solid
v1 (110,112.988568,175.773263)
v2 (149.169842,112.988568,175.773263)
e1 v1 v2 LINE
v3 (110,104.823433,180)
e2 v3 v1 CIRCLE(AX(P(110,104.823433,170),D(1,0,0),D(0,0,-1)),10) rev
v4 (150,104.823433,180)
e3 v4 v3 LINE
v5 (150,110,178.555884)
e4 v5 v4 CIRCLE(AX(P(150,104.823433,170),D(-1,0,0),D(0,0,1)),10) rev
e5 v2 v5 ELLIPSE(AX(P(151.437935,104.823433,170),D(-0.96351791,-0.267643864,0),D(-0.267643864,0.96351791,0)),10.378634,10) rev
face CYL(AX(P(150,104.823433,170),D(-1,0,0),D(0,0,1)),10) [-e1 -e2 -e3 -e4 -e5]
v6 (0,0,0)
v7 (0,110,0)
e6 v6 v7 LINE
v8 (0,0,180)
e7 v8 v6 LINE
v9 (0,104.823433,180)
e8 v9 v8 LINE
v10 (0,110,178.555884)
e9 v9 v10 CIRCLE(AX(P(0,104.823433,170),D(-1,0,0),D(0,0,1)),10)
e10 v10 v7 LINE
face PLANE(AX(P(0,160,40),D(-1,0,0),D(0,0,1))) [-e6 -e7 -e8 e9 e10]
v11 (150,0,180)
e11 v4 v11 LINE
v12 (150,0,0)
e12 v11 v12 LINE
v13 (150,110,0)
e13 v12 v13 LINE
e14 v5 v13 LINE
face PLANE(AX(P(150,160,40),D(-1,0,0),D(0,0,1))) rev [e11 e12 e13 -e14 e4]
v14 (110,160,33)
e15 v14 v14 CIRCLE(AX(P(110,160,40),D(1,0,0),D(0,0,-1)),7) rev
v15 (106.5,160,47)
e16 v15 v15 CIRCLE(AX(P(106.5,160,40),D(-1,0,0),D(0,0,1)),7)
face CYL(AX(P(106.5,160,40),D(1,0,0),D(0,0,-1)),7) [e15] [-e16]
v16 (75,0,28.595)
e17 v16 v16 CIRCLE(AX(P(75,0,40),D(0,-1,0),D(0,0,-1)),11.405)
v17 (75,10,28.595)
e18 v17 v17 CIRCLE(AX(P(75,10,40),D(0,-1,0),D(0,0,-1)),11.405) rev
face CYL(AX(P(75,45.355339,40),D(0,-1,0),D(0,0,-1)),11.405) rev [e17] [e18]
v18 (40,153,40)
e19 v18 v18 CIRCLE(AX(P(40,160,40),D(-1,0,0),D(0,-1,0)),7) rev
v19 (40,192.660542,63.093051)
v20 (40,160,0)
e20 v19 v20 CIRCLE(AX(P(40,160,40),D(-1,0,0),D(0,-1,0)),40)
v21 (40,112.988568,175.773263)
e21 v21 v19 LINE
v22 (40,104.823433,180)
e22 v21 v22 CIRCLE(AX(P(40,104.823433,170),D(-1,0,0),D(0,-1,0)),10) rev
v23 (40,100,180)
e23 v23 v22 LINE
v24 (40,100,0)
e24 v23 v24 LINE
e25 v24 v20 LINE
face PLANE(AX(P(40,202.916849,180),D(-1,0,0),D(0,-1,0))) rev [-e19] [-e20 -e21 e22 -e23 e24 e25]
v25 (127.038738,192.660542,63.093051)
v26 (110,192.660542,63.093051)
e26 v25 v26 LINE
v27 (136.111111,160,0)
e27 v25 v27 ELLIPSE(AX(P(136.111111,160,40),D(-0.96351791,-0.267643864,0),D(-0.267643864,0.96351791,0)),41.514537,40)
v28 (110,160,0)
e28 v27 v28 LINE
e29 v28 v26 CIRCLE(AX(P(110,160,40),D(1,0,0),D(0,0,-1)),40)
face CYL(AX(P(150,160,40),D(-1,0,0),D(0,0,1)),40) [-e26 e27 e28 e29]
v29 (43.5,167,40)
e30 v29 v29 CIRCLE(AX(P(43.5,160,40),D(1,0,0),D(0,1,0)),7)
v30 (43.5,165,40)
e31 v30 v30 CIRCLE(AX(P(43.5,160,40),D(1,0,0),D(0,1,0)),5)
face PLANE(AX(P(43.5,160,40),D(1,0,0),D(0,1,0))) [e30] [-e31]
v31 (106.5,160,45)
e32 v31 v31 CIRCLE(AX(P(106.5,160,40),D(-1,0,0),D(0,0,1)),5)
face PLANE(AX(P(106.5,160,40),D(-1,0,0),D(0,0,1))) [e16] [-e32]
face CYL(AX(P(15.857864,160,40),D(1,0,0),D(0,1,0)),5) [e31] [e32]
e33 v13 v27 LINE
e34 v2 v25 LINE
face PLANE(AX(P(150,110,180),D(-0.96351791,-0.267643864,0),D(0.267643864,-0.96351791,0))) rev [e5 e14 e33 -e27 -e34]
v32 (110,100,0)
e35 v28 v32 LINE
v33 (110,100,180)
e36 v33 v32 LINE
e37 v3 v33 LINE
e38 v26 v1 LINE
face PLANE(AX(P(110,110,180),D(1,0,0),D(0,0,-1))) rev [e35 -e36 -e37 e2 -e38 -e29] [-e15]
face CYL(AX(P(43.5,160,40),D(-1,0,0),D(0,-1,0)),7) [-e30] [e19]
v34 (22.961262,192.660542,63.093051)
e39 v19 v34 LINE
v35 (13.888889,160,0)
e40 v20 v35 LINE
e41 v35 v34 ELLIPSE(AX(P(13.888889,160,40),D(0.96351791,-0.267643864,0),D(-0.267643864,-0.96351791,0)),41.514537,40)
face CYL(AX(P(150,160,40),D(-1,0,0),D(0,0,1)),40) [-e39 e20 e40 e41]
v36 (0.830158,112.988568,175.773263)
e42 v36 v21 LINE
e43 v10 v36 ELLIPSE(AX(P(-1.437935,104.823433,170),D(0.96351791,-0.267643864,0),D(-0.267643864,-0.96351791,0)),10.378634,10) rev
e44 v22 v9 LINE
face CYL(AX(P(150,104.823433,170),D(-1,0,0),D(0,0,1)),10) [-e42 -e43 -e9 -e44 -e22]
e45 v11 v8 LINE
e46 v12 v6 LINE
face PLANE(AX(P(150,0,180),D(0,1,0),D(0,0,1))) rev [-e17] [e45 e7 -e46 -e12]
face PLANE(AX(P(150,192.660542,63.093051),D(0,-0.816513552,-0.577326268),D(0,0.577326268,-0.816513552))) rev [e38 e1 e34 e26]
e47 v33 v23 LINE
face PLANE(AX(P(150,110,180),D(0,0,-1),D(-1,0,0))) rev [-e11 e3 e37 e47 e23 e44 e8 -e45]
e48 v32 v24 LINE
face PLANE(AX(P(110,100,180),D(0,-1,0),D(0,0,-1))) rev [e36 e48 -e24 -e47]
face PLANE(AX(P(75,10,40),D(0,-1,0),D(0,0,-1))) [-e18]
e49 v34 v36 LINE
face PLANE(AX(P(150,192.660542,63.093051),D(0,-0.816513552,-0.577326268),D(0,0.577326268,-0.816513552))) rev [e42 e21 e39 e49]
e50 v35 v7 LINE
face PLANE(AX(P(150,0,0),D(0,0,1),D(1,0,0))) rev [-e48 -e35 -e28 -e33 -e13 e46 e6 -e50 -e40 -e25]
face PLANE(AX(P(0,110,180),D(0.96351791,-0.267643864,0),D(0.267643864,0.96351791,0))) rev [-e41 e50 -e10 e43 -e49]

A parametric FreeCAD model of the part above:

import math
import FreeCAD as App
import Part
import Sketcher
from FreeCAD import Vector


def edges_at(feature, points):
    """Names of the edges that pass closest to the given points."""
    edges = feature.Shape.Edges
    near = lambda p: min(range(len(edges)), key=lambda i: edges[i].distToShape(Part.Vertex(*p))[0])
    return sorted({f"Edge{near(p) + 1}" for p in points})

doc = App.newDocument("Part")
params = doc.addObject("Spreadsheet::Sheet", "Params")
for row, (alias, value) in enumerate([
    ("sketch1_radius", "40 mm"),
    ("sketch1_width", "160 mm"),
    ("sketch1_width2", "110 mm"),
    ("sketch1_height", "180 mm"),
    ("pad1_length", "150 mm"),
    ("fillet_radius", "10 mm"),
    ("sketch2_width", "70 mm"),
    ("sketch3_diameter", "25 mm"),
    ("pocket2_length", "10 mm"),
    ("sketch4_diameter", "10 mm"),
    ("pocket3_length", "80 mm"),
    ("pocket3_length2", "10 mm"),
    ("sketch5_diameter", "25 mm"),
    ("sketch5_diameter2", "22.81 mm"),
    ("pad2_length", "10 mm"),
    ("sketch6_diameter", "10 mm"),
    ("pad3_length", "90 mm"),
    ("sketch7_diameter", "14 mm"),
    ("sketch7_diameter2", "10 mm"),
    ("pad4_length", "3.5 mm"),
    ("sketch8_diameter", "14 mm"),
    ("sketch8_diameter2", "10 mm"),
    ("pad5_length", "3.5 mm"),
], start=1):
    params.set(f"A{row}", alias)
    params.set(f"B{row}", "=" + value)
    params.setAlias(f"B{row}", alias)

body = doc.addObject("PartDesign::Body", "Body")

sketch1 = body.newObject("Sketcher::SketchObject", "Sketch")
sketch1.AttachmentSupport = (doc.getObject("YZ_Plane"), [""])
sketch1.MapMode = "FlatFace"
sketch1.addGeometry([
    Part.LineSegment(Vector(0, 0, 0), Vector(160, 0, 0)),
    Part.ArcOfCircle(Part.Circle(Vector(160, 40, 0), Vector(0, 0, 1), 40), math.radians(-90), math.radians(35.262705)),
    Part.LineSegment(Vector(192.660542, 63.093051, 0), Vector(110, 180, 0)),
    Part.LineSegment(Vector(110, 180, 0), Vector(0, 180, 0)),
    Part.LineSegment(Vector(0, 180, 0), Vector(0, 0, 0)),
], False)
sketch1.addConstraint([
    Sketcher.Constraint("Tangent", 0, 2, 1, 1),
    Sketcher.Constraint("Tangent", 1, 2, 2, 1),
    Sketcher.Constraint("Coincident", 2, 2, 3, 1),
    Sketcher.Constraint("Coincident", 3, 2, 4, 1),
    Sketcher.Constraint("Coincident", 4, 2, 0, 1),
    Sketcher.Constraint("Horizontal", 0),
    Sketcher.Constraint("Horizontal", 3),
    Sketcher.Constraint("Vertical", 4),
    Sketcher.Constraint("Coincident", 4, 2, -1, 1),
    Sketcher.Constraint("Radius", 1, 40.0),
    Sketcher.Constraint("DistanceX", 0, 1, 0, 2, 160.0),
    Sketcher.Constraint("DistanceX", 3, 2, 3, 1, 110.0),
    Sketcher.Constraint("DistanceY", 4, 2, 4, 1, 180.0),
])
sketch1.setExpression("Constraints[9]", "Params.sketch1_radius")
sketch1.setExpression("Constraints[10]", "Params.sketch1_width")
sketch1.setExpression("Constraints[11]", "Params.sketch1_width2")
sketch1.setExpression("Constraints[12]", "Params.sketch1_height")
pad1 = body.newObject("PartDesign::Pad", "Pad")
pad1.Profile = sketch1
pad1.setExpression("Length", "Params.pad1_length")
doc.recompute()

fillet = body.newObject("PartDesign::Fillet", "Fillet")
fillet.Base = (pad1, edges_at(pad1, [(75, 110, 180)]))
fillet.setExpression("Radius", "Params.fillet_radius")

sketch2 = body.newObject("Sketcher::SketchObject", "Sketch001")
sketch2.AttachmentSupport = (doc.getObject("XY_Plane"), [""])
sketch2.MapMode = "FlatFace"
sketch2.addGeometry([
    Part.LineSegment(Vector(150, 110, 0), Vector(125, 200, 0)),
    Part.LineSegment(Vector(125, 200, 0), Vector(125, 212.317242, 0)),
    Part.LineSegment(Vector(125, 212.317242, 0), Vector(176.07703, 212.317242, 0)),
    Part.LineSegment(Vector(176.07703, 212.317242, 0), Vector(176.07703, 111.407234, 0)),
    Part.LineSegment(Vector(176.07703, 111.407234, 0), Vector(150, 110, 0)),
    Part.LineSegment(Vector(110, 202.916849, 0), Vector(110, 100, 0)),
    Part.LineSegment(Vector(110, 100, 0), Vector(40, 100, 0)),
    Part.LineSegment(Vector(40, 100, 0), Vector(40, 202.916849, 0)),
    Part.LineSegment(Vector(40, 202.916849, 0), Vector(110, 202.916849, 0)),
    Part.LineSegment(Vector(0, 110, 0), Vector(-26.07703, 111.407234, 0)),
    Part.LineSegment(Vector(-26.07703, 111.407234, 0), Vector(-26.07703, 212.317242, 0)),
    Part.LineSegment(Vector(-26.07703, 212.317242, 0), Vector(25, 212.317242, 0)),
    Part.LineSegment(Vector(25, 212.317242, 0), Vector(25, 200, 0)),
    Part.LineSegment(Vector(25, 200, 0), Vector(0, 110, 0)),
], False)
sketch2.addConstraint([
    Sketcher.Constraint("Coincident", 0, 2, 1, 1),
    Sketcher.Constraint("Coincident", 1, 2, 2, 1),
    Sketcher.Constraint("Coincident", 2, 2, 3, 1),
    Sketcher.Constraint("Coincident", 3, 2, 4, 1),
    Sketcher.Constraint("Coincident", 4, 2, 0, 1),
    Sketcher.Constraint("Coincident", 5, 2, 6, 1),
    Sketcher.Constraint("Coincident", 6, 2, 7, 1),
    Sketcher.Constraint("Coincident", 7, 2, 8, 1),
    Sketcher.Constraint("Coincident", 8, 2, 5, 1),
    Sketcher.Constraint("Coincident", 9, 2, 10, 1),
    Sketcher.Constraint("Coincident", 10, 2, 11, 1),
    Sketcher.Constraint("Coincident", 11, 2, 12, 1),
    Sketcher.Constraint("Coincident", 12, 2, 13, 1),
    Sketcher.Constraint("Coincident", 13, 2, 9, 1),
    Sketcher.Constraint("Vertical", 1),
    Sketcher.Constraint("Horizontal", 2),
    Sketcher.Constraint("Vertical", 3),
    Sketcher.Constraint("Vertical", 5),
    Sketcher.Constraint("Horizontal", 6),
    Sketcher.Constraint("Vertical", 7),
    Sketcher.Constraint("Horizontal", 8),
    Sketcher.Constraint("Vertical", 10),
    Sketcher.Constraint("Horizontal", 11),
    Sketcher.Constraint("Vertical", 12),
    Sketcher.Constraint("PointOnObject", 13, 2, -2),
    Sketcher.Constraint("Horizontal", 3, 2, 9, 2),
    Sketcher.Constraint("Horizontal", 2, 2, 10, 2),
    Sketcher.Constraint("Horizontal", 0, 2, 12, 2),
    Sketcher.Constraint("Horizontal", 4, 2, 13, 2),
    Sketcher.Constraint("Equal", 2, 11),
    Sketcher.Constraint("Equal", 4, 9),
    Sketcher.Constraint("DistanceX", 6, 2, 6, 1, 70.0),
    Sketcher.Constraint("DistanceX", -1, 1, 0, 2, 125.0),
    Sketcher.Constraint("DistanceY", -1, 1, 0, 2, 200.0),
    Sketcher.Constraint("DistanceX", -1, 1, 4, 2, 150.0),
    Sketcher.Constraint("DistanceY", -1, 1, 4, 2, 110.0),
    Sketcher.Constraint("DistanceX", -1, 1, 5, 2, 110.0),
    Sketcher.Constraint("DistanceY", -1, 1, 5, 2, 100.0),
    Sketcher.Constraint("DistanceX", 2, 1, 2, 2, 51.07703),
    Sketcher.Constraint("DistanceY", 1, 1, 1, 2, 12.317242),
    Sketcher.Constraint("DistanceY", 5, 2, 5, 1, 102.916849),
    Sketcher.Constraint("DistanceY", 3, 2, 3, 1, 100.910008),
])
sketch2.setExpression("Constraints[31]", "Params.sketch2_width")
pocket1 = body.newObject("PartDesign::Pocket", "Pocket")
pocket1.Profile = sketch2
pocket1.Type = "ThroughAll"
pocket1.Reversed = True

sketch3 = body.newObject("Sketcher::SketchObject", "Sketch002")
sketch3.AttachmentSupport = (doc.getObject("XZ_Plane"), [""])
sketch3.MapMode = "FlatFace"
sketch3.addGeometry(Part.Circle(Vector(75, 40, 0), Vector(0, 0, 1), 12.5), False)
sketch3.addConstraint([
    Sketcher.Constraint("Diameter", 0, 25.0),
    Sketcher.Constraint("DistanceX", -1, 1, 0, 3, 75.0),
    Sketcher.Constraint("DistanceY", -1, 1, 0, 3, 40.0),
])
sketch3.setExpression("Constraints[0]", "Params.sketch3_diameter")
pocket2 = body.newObject("PartDesign::Pocket", "Pocket001")
pocket2.Profile = sketch3
pocket2.setExpression("Length", "Params.pocket2_length")

sketch4 = body.newObject("Sketcher::SketchObject", "Sketch003")
sketch4.AttachmentSupport = (doc.getObject("YZ_Plane"), [""])
sketch4.MapMode = "FlatFace"
sketch4.AttachmentOffset = App.Placement(Vector(0, 0, 40), App.Rotation())
sketch4.addGeometry(Part.Circle(Vector(160, 40, 0), Vector(0, 0, 1), 5), False)
sketch4.addConstraint([
    Sketcher.Constraint("Diameter", 0, 10.0),
    Sketcher.Constraint("DistanceX", -1, 1, 0, 3, 160.0),
    Sketcher.Constraint("DistanceY", -1, 1, 0, 3, 40.0),
])
sketch4.setExpression("Constraints[0]", "Params.sketch4_diameter")
pocket3 = body.newObject("PartDesign::Pocket", "Pocket002")
pocket3.Profile = sketch4
pocket3.Type = "TwoLengths"
pocket3.setExpression("Length", "Params.pocket3_length")
pocket3.setExpression("Length2", "Params.pocket3_length2")
pocket3.Reversed = True

sketch5 = body.newObject("Sketcher::SketchObject", "Sketch004")
sketch5.AttachmentSupport = (doc.getObject("XZ_Plane"), [""])
sketch5.MapMode = "FlatFace"
sketch5.addGeometry([
    Part.Circle(Vector(75, 40, 0), Vector(0, 0, 1), 12.5),
    Part.Circle(Vector(75, 40, 0), Vector(0, 0, 1), 11.405),
], False)
sketch5.addConstraint([
    Sketcher.Constraint("Coincident", 1, 3, 0, 3),
    Sketcher.Constraint("Diameter", 0, 25.0),
    Sketcher.Constraint("Diameter", 1, 22.81),
    Sketcher.Constraint("DistanceX", -1, 1, 0, 3, 75.0),
    Sketcher.Constraint("DistanceY", -1, 1, 0, 3, 40.0),
])
sketch5.setExpression("Constraints[1]", "Params.sketch5_diameter")
sketch5.setExpression("Constraints[2]", "Params.sketch5_diameter2")
pad2 = body.newObject("PartDesign::Pad", "Pad001")
pad2.Profile = sketch5
pad2.setExpression("Length", "Params.pad2_length")
pad2.Reversed = True

sketch6 = body.newObject("Sketcher::SketchObject", "Sketch005")
sketch6.AttachmentSupport = (doc.getObject("YZ_Plane"), [""])
sketch6.MapMode = "FlatFace"
sketch6.AttachmentOffset = App.Placement(Vector(0, 0, 120), App.Rotation())
sketch6.addGeometry(Part.Circle(Vector(160, 40, 0), Vector(0, 0, 1), 5), False)
sketch6.addConstraint([
    Sketcher.Constraint("Diameter", 0, 10.0),
    Sketcher.Constraint("DistanceX", -1, 1, 0, 3, 160.0),
    Sketcher.Constraint("DistanceY", -1, 1, 0, 3, 40.0),
])
sketch6.setExpression("Constraints[0]", "Params.sketch6_diameter")
pad3 = body.newObject("PartDesign::Pad", "Pad002")
pad3.Profile = sketch6
pad3.setExpression("Length", "Params.pad3_length")
pad3.Reversed = True

sketch7 = body.newObject("Sketcher::SketchObject", "Sketch006")
sketch7.AttachmentSupport = (doc.getObject("YZ_Plane"), [""])
sketch7.MapMode = "FlatFace"
sketch7.AttachmentOffset = App.Placement(Vector(0, 0, 110), App.Rotation())
sketch7.addGeometry([
    Part.Circle(Vector(160, 40, 0), Vector(0, 0, 1), 7),
    Part.Circle(Vector(160, 40, 0), Vector(0, 0, 1), 5),
], False)
sketch7.addConstraint([
    Sketcher.Constraint("Coincident", 1, 3, 0, 3),
    Sketcher.Constraint("Diameter", 0, 14.0),
    Sketcher.Constraint("Diameter", 1, 10.0),
    Sketcher.Constraint("DistanceX", -1, 1, 0, 3, 160.0),
    Sketcher.Constraint("DistanceY", -1, 1, 0, 3, 40.0),
])
sketch7.setExpression("Constraints[1]", "Params.sketch7_diameter")
sketch7.setExpression("Constraints[2]", "Params.sketch7_diameter2")
pad4 = body.newObject("PartDesign::Pad", "Pad003")
pad4.Profile = sketch7
pad4.setExpression("Length", "Params.pad4_length")
pad4.Reversed = True

sketch8 = body.newObject("Sketcher::SketchObject", "Sketch007")
sketch8.AttachmentSupport = (doc.getObject("YZ_Plane"), [""])
sketch8.MapMode = "FlatFace"
sketch8.AttachmentOffset = App.Placement(Vector(0, 0, 43.5), App.Rotation())
sketch8.addGeometry([
    Part.Circle(Vector(160, 40, 0), Vector(0, 0, 1), 7),
    Part.Circle(Vector(160, 40, 0), Vector(0, 0, 1), 5),
], False)
sketch8.addConstraint([
    Sketcher.Constraint("Coincident", 1, 3, 0, 3),
    Sketcher.Constraint("Diameter", 0, 14.0),
    Sketcher.Constraint("Diameter", 1, 10.0),
    Sketcher.Constraint("DistanceX", -1, 1, 0, 3, 160.0),
    Sketcher.Constraint("DistanceY", -1, 1, 0, 3, 40.0),
])
sketch8.setExpression("Constraints[1]", "Params.sketch8_diameter")
sketch8.setExpression("Constraints[2]", "Params.sketch8_diameter2")
pad5 = body.newObject("PartDesign::Pad", "Pad004")
pad5.Profile = sketch8
pad5.setExpression("Length", "Params.pad5_length")
pad5.Reversed = True

doc.recompute()
